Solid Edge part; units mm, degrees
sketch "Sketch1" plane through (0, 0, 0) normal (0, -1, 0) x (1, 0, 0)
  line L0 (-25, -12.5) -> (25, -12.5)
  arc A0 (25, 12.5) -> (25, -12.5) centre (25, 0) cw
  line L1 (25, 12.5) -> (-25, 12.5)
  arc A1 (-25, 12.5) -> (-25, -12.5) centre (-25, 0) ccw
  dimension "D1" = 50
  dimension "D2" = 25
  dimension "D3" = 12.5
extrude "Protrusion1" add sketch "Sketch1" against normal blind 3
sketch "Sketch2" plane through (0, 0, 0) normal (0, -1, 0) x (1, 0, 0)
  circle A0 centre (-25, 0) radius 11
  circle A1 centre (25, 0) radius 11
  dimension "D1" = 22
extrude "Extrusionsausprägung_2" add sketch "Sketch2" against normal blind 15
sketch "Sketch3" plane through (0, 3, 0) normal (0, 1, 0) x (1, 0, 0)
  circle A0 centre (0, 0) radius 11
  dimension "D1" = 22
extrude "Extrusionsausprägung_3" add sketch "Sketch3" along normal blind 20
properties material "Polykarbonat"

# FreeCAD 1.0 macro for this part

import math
import FreeCAD as App
import Part
import Sketcher
Q = App.Units.Quantity

doc = App.newDocument("Part")
body = doc.addObject("PartDesign::Body", "Body")

sketch1 = body.newObject("Sketcher::SketchObject", "Sketch")
sketch1.AttachmentSupport = (doc.getObject("XZ_Plane"), [""])
sketch1.MapMode = "FlatFace"
sketch1.addGeometry(Part.ArcOfCircle(Part.Circle(App.Vector(-25, 0, 0), App.Vector(0, 0, 1), 12.5), math.radians(90), math.radians(270)), False)
sketch1.addGeometry(Part.LineSegment(App.Vector(-25, -12.5, 0), App.Vector(25, -12.5, 0)), False)
sketch1.addGeometry(Part.ArcOfCircle(Part.Circle(App.Vector(25, 0, 0), App.Vector(0, 0, 1), 12.5), math.radians(-90), math.radians(90)), False)
sketch1.addGeometry(Part.LineSegment(App.Vector(25, 12.5, 0), App.Vector(-25, 12.5, 0)), False)
sketch1.addConstraint(Sketcher.Constraint("Tangent", 0, 2, 1, 1))
sketch1.addConstraint(Sketcher.Constraint("Tangent", 1, 2, 2, 1))
sketch1.addConstraint(Sketcher.Constraint("Tangent", 2, 2, 3, 1))
sketch1.addConstraint(Sketcher.Constraint("Tangent", 3, 2, 0, 1))
sketch1.addConstraint(Sketcher.Constraint("Horizontal", 1))
sketch1.addConstraint(Sketcher.Constraint("Horizontal", 3))
sketch1.addConstraint(Sketcher.Constraint("Symmetric", 0, 3, 2, 3, -1, 1))
sketch1.addConstraint(Sketcher.Constraint("Radius", 0, Q("12.5 mm")))
sketch1.addConstraint(Sketcher.Constraint("DistanceX", 0, 3, -1, 1, Q("25 mm")))
pad1 = body.newObject("PartDesign::Pad", "Pad")
pad1.Profile = sketch1
pad1.Length = 3
pad1.Reversed = True

sketch2 = body.newObject("Sketcher::SketchObject", "Sketch001")
sketch2.AttachmentSupport = (doc.getObject("XZ_Plane"), [""])
sketch2.MapMode = "FlatFace"
sketch2.addGeometry(Part.Circle(App.Vector(-25, 0, 0), App.Vector(0, 0, 1), 11), False)
sketch2.addGeometry(Part.Circle(App.Vector(25, 0, 0), App.Vector(0, 0, 1), 11), False)
sketch2.addConstraint(Sketcher.Constraint("Equal", 0, 1))
sketch2.addConstraint(Sketcher.Constraint("Symmetric", 0, 3, 1, 3, -1, 1))
sketch2.addConstraint(Sketcher.Constraint("PointOnObject", 0, 3, -1))
sketch2.addConstraint(Sketcher.Constraint("Diameter", 0, Q("22 mm")))
sketch2.addConstraint(Sketcher.Constraint("DistanceX", 0, 3, -1, 1, Q("25 mm")))
pad2 = body.newObject("PartDesign::Pad", "Pad001")
pad2.Profile = sketch2
pad2.Length = 15
pad2.Reversed = True

sketch3 = body.newObject("Sketcher::SketchObject", "Sketch002")
sketch3.AttachmentSupport = (doc.getObject("XZ_Plane"), [""])
sketch3.MapMode = "FlatFace"
sketch3.AttachmentOffset = App.Placement(App.Vector(0, 0, -3), App.Rotation())
sketch3.addGeometry(Part.Circle(App.Vector(0, 0, 0), App.Vector(0, 0, 1), 11), False)
sketch3.addConstraint(Sketcher.Constraint("Coincident", 0, 3, -1, 1))
sketch3.addConstraint(Sketcher.Constraint("Diameter", 0, Q("22 mm")))
pad3 = body.newObject("PartDesign::Pad", "Pad002")
pad3.Profile = sketch3
pad3.Length = 20
pad3.Reversed = True

doc.recompute()
